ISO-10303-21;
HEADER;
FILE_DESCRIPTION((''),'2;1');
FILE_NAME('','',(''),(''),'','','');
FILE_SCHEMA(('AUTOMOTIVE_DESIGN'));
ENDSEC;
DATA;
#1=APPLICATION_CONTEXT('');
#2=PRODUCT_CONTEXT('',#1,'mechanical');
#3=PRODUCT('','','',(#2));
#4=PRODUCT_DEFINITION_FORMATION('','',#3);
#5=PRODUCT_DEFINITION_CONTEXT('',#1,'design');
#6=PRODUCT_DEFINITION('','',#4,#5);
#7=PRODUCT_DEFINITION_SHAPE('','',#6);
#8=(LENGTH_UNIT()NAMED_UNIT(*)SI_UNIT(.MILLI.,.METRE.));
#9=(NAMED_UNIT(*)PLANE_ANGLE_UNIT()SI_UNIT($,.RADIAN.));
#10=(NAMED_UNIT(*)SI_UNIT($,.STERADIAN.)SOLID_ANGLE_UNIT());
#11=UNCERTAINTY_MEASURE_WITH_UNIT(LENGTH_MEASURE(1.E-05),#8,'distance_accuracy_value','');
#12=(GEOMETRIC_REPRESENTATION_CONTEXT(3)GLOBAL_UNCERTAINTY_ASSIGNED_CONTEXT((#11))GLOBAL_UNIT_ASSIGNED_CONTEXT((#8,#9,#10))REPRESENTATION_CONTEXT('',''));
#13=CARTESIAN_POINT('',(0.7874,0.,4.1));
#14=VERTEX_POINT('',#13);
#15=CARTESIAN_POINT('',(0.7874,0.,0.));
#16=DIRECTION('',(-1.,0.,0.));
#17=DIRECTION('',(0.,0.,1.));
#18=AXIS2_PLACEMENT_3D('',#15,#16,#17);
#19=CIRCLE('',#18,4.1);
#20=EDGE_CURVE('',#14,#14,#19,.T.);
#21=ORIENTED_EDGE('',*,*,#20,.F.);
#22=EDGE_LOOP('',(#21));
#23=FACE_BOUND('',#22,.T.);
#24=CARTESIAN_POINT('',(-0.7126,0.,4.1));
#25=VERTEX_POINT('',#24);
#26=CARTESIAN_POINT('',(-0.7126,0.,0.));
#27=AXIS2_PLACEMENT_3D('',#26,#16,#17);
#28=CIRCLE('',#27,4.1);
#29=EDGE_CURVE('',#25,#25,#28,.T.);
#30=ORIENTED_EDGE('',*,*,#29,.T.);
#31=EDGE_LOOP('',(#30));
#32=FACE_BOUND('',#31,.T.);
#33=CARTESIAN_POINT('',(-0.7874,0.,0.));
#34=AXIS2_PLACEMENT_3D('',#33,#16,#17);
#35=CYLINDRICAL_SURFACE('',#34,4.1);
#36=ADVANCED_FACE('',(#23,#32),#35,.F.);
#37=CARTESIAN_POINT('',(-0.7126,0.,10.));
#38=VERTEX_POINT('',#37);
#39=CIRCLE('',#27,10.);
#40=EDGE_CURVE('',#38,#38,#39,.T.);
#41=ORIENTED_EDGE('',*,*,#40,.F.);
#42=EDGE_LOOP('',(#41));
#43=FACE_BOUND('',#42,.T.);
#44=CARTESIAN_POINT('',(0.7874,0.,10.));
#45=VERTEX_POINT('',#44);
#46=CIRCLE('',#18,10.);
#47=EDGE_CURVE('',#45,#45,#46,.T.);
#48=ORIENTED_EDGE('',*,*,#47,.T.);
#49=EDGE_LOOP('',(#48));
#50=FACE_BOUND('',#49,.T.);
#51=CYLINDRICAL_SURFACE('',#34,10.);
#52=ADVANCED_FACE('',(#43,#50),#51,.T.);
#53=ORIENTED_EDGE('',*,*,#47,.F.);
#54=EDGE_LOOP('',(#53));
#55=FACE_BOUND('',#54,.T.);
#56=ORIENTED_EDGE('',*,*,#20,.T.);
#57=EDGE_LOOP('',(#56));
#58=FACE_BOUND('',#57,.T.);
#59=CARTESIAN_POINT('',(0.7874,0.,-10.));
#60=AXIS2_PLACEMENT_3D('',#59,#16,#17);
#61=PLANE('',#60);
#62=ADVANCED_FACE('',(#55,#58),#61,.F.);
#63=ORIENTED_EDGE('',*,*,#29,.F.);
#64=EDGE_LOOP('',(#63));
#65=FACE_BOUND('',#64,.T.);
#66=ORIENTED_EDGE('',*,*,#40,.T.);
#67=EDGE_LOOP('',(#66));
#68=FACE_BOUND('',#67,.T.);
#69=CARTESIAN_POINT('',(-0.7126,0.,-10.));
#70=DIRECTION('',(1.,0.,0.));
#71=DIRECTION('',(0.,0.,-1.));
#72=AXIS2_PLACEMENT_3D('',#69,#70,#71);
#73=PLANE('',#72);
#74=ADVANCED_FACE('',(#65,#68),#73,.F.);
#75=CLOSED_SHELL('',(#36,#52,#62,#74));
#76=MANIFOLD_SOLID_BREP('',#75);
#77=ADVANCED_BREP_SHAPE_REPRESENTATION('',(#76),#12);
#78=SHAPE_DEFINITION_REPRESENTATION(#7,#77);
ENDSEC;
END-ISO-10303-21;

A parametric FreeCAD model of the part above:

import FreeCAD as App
import Part
import Sketcher
Q = App.Units.Quantity

doc = App.newDocument("Part")
body = doc.addObject("PartDesign::Body", "Body")

sketch1 = body.newObject("Sketcher::SketchObject", "Sketch")
sketch1.AttachmentSupport = (doc.getObject("XZ_Plane"), [""])
sketch1.MapMode = "FlatFace"
sketch1.addGeometry([
    Part.LineSegment(App.Vector(-0.7, -10, 0), App.Vector(-0.7, -4.1, 0)),
    Part.LineSegment(App.Vector(-0.7, -4.1, 0), App.Vector(0.8, -4.1, 0)),
    Part.LineSegment(App.Vector(0.8, -4.1, 0), App.Vector(0.8, -10, 0)),
    Part.LineSegment(App.Vector(0.8, -10, 0), App.Vector(-0.7, -10, 0)),
], False)
sketch1.addConstraint([
    Sketcher.Constraint("Coincident", 0, 2, 1, 1),
    Sketcher.Constraint("Coincident", 1, 2, 2, 1),
    Sketcher.Constraint("Coincident", 2, 2, 3, 1),
    Sketcher.Constraint("Coincident", 3, 2, 0, 1),
    Sketcher.Constraint("Vertical", 0),
    Sketcher.Constraint("Horizontal", 1),
    Sketcher.Constraint("Vertical", 2),
    Sketcher.Constraint("Horizontal", 3),
    Sketcher.Constraint("DistanceX", 1, 1, 1, 2, Q("1.5 mm")),
    Sketcher.Constraint("DistanceY", 0, 1, 0, 2, Q("5.9 mm")),
    Sketcher.Constraint("DistanceY", 2, 2, -1, 1, Q("10 mm")),
    Sketcher.Constraint("DistanceX", 0, 2, -1, 1, Q("0.7126 mm")),
])
revolution = body.newObject("PartDesign::Revolution", "Revolution")
revolution.Profile = sketch1
revolution.ReferenceAxis = (sketch1, ["H_Axis"])
revolution.Angle = 360

doc.recompute()
